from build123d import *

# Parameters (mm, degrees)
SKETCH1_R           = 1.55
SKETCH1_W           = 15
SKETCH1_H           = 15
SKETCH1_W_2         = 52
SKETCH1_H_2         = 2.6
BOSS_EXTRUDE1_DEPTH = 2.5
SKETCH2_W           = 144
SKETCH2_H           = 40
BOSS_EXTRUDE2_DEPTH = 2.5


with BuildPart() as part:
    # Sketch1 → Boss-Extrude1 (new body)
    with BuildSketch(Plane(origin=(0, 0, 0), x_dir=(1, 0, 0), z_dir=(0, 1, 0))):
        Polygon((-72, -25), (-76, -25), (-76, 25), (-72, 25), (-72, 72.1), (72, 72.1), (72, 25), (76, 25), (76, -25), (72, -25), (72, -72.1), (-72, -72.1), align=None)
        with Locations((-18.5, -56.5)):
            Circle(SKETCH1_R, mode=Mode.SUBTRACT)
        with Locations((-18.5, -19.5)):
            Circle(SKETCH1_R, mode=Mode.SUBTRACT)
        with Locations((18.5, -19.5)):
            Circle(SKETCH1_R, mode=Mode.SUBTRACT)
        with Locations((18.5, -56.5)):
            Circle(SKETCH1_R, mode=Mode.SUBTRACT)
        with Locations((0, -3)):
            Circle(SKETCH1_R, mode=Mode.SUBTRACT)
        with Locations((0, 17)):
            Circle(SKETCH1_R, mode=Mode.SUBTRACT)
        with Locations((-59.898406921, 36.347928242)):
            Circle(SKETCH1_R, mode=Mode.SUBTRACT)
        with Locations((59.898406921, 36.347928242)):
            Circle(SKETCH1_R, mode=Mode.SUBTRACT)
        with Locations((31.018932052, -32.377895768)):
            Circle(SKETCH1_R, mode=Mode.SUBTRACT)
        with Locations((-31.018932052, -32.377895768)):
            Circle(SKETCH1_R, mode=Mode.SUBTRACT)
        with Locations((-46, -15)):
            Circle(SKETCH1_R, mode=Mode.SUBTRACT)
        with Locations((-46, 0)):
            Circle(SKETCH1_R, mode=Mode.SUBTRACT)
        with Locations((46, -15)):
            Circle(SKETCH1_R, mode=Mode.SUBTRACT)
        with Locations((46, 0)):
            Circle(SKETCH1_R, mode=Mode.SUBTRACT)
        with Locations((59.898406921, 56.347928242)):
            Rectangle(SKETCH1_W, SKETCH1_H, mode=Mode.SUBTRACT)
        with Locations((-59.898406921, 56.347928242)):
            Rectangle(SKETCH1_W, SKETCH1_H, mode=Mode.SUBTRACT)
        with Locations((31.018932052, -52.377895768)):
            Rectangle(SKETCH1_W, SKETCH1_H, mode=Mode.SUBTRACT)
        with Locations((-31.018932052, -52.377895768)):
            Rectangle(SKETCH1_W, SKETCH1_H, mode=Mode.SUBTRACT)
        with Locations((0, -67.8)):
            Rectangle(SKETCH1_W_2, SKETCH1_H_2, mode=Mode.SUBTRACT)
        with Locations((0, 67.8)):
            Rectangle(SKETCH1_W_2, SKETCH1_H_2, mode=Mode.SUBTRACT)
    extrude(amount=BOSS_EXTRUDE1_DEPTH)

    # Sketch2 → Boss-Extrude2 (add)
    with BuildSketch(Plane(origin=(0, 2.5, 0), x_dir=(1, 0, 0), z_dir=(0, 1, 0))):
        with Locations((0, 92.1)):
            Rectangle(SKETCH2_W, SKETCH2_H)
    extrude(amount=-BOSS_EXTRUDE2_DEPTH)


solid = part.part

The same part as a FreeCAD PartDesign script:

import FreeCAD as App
import Part
import Sketcher

doc = App.newDocument("Part")
body = doc.addObject("PartDesign::Body", "Body")

sketch1 = body.newObject("Sketcher::SketchObject", "Sketch")
sketch1.AttachmentSupport = (doc.getObject("XZ_Plane"), [""])
sketch1.MapMode = "FlatFace"
sketch1.addGeometry([
    Part.LineSegment(App.Vector(-76, 25, 0), App.Vector(-72, 25, 0)),
    Part.LineSegment(App.Vector(-72, 25, 0), App.Vector(-72, 72.1, 0)),
    Part.LineSegment(App.Vector(-72, 72.1, 0), App.Vector(72, 72.1, 0)),
    Part.LineSegment(App.Vector(72, 72.1, 0), App.Vector(72, 25, 0)),
    Part.LineSegment(App.Vector(72, 25, 0), App.Vector(76, 25, 0)),
    Part.LineSegment(App.Vector(76, 25, 0), App.Vector(76, -25, 0)),
    Part.LineSegment(App.Vector(76, -25, 0), App.Vector(72, -25, 0)),
    Part.LineSegment(App.Vector(72, -25, 0), App.Vector(72, -72.1, 0)),
    Part.LineSegment(App.Vector(72, -72.1, 0), App.Vector(-72, -72.1, 0)),
    Part.LineSegment(App.Vector(-72, -72.1, 0), App.Vector(-72, -25, 0)),
    Part.LineSegment(App.Vector(-72, -25, 0), App.Vector(-76, -25, 0)),
    Part.LineSegment(App.Vector(-76, -25, 0), App.Vector(-76, 25, 0)),
    Part.LineSegment(App.Vector(23.5, 59.9, 0), App.Vector(23.5, 44.9, 0)),
    Part.LineSegment(App.Vector(23.5, 44.9, 0), App.Vector(38.5, 44.9, 0)),
    Part.LineSegment(App.Vector(38.5, 44.9, 0), App.Vector(38.5, 59.9, 0)),
    Part.LineSegment(App.Vector(38.5, 59.9, 0), App.Vector(23.5, 59.9, 0)),
    Part.Circle(App.Vector(18.5, 56.5, 0), App.Vector(0, 0, 1), 1.6),
    Part.Circle(App.Vector(46, 15, 0), App.Vector(0, 0, 1), 1.6),
    Part.Circle(App.Vector(31, 32.4, 0), App.Vector(0, 0, 1), 1.6),
    Part.Circle(App.Vector(18.5, 19.5, 0), App.Vector(0, 0, 1), 1.6),
    Part.LineSegment(App.Vector(-26, 69.1, 0), App.Vector(-26, 66.5, 0)),
    Part.LineSegment(App.Vector(-26, 66.5, 0), App.Vector(26, 66.5, 0)),
    Part.LineSegment(App.Vector(26, 66.5, 0), App.Vector(26, 69.1, 0)),
    Part.LineSegment(App.Vector(26, 69.1, 0), App.Vector(-26, 69.1, 0)),
    Part.Circle(App.Vector(-18.5, 56.5, 0), App.Vector(0, 0, 1), 1.6),
    Part.LineSegment(App.Vector(-38.5, 59.9, 0), App.Vector(-38.5, 44.9, 0)),
    Part.LineSegment(App.Vector(-38.5, 44.9, 0), App.Vector(-23.5, 44.9, 0)),
    Part.LineSegment(App.Vector(-23.5, 44.9, 0), App.Vector(-23.5, 59.9, 0)),
    Part.LineSegment(App.Vector(-23.5, 59.9, 0), App.Vector(-38.5, 59.9, 0)),
    Part.Circle(App.Vector(-31, 32.4, 0), App.Vector(0, 0, 1), 1.6),
    Part.Circle(App.Vector(-18.5, 19.5, 0), App.Vector(0, 0, 1), 1.6),
    Part.Circle(App.Vector(0, 3, 0), App.Vector(0, 0, 1), 1.6),
    Part.Circle(App.Vector(-46, 15, 0), App.Vector(0, 0, 1), 1.6),
    Part.Circle(App.Vector(46, 0, 0), App.Vector(0, 0, 1), 1.6),
    Part.Circle(App.Vector(59.9, -36.3, 0), App.Vector(0, 0, 1), 1.6),
    Part.LineSegment(App.Vector(52.4, -48.8, 0), App.Vector(52.4, -63.8, 0)),
    Part.LineSegment(App.Vector(52.4, -63.8, 0), App.Vector(67.4, -63.8, 0)),
    Part.LineSegment(App.Vector(67.4, -63.8, 0), App.Vector(67.4, -48.8, 0)),
    Part.LineSegment(App.Vector(67.4, -48.8, 0), App.Vector(52.4, -48.8, 0)),
    Part.Circle(App.Vector(0, -17, 0), App.Vector(0, 0, 1), 1.6),
    Part.Circle(App.Vector(-46, 0, 0), App.Vector(0, 0, 1), 1.6),
    Part.LineSegment(App.Vector(-26, -66.5, 0), App.Vector(-26, -69.1, 0)),
    Part.LineSegment(App.Vector(-26, -69.1, 0), App.Vector(26, -69.1, 0)),
    Part.LineSegment(App.Vector(26, -69.1, 0), App.Vector(26, -66.5, 0)),
    Part.LineSegment(App.Vector(26, -66.5, 0), App.Vector(-26, -66.5, 0)),
    Part.Circle(App.Vector(-59.9, -36.3, 0), App.Vector(0, 0, 1), 1.6),
    Part.LineSegment(App.Vector(-67.4, -48.8, 0), App.Vector(-67.4, -63.8, 0)),
    Part.LineSegment(App.Vector(-67.4, -63.8, 0), App.Vector(-52.4, -63.8, 0)),
    Part.LineSegment(App.Vector(-52.4, -63.8, 0), App.Vector(-52.4, -48.8, 0)),
    Part.LineSegment(App.Vector(-52.4, -48.8, 0), App.Vector(-67.4, -48.8, 0)),
], False)
sketch1.addConstraint([
    Sketcher.Constraint("Coincident", 0, 2, 1, 1),
    Sketcher.Constraint("Coincident", 1, 2, 2, 1),
    Sketcher.Constraint("Coincident", 2, 2, 3, 1),
    Sketcher.Constraint("Coincident", 3, 2, 4, 1),
    Sketcher.Constraint("Coincident", 4, 2, 5, 1),
    Sketcher.Constraint("Coincident", 5, 2, 6, 1),
    Sketcher.Constraint("Coincident", 6, 2, 7, 1),
    Sketcher.Constraint("Coincident", 7, 2, 8, 1),
    Sketcher.Constraint("Coincident", 8, 2, 9, 1),
    Sketcher.Constraint("Coincident", 9, 2, 10, 1),
    Sketcher.Constraint("Coincident", 10, 2, 11, 1),
    Sketcher.Constraint("Coincident", 11, 2, 0, 1),
    Sketcher.Constraint("Coincident", 12, 2, 13, 1),
    Sketcher.Constraint("Coincident", 13, 2, 14, 1),
    Sketcher.Constraint("Coincident", 14, 2, 15, 1),
    Sketcher.Constraint("Coincident", 15, 2, 12, 1),
    Sketcher.Constraint("Coincident", 20, 2, 21, 1),
    Sketcher.Constraint("Coincident", 21, 2, 22, 1),
    Sketcher.Constraint("Coincident", 22, 2, 23, 1),
    Sketcher.Constraint("Coincident", 23, 2, 20, 1),
    Sketcher.Constraint("Coincident", 25, 2, 26, 1),
    Sketcher.Constraint("Coincident", 26, 2, 27, 1),
    Sketcher.Constraint("Coincident", 27, 2, 28, 1),
    Sketcher.Constraint("Coincident", 28, 2, 25, 1),
    Sketcher.Constraint("Coincident", 35, 2, 36, 1),
    Sketcher.Constraint("Coincident", 36, 2, 37, 1),
    Sketcher.Constraint("Coincident", 37, 2, 38, 1),
    Sketcher.Constraint("Coincident", 38, 2, 35, 1),
    Sketcher.Constraint("Coincident", 41, 2, 42, 1),
    Sketcher.Constraint("Coincident", 42, 2, 43, 1),
    Sketcher.Constraint("Coincident", 43, 2, 44, 1),
    Sketcher.Constraint("Coincident", 44, 2, 41, 1),
    Sketcher.Constraint("Coincident", 46, 2, 47, 1),
    Sketcher.Constraint("Coincident", 47, 2, 48, 1),
    Sketcher.Constraint("Coincident", 48, 2, 49, 1),
    Sketcher.Constraint("Coincident", 49, 2, 46, 1),
    Sketcher.Constraint("Horizontal", 0),
    Sketcher.Constraint("Vertical", 1),
    Sketcher.Constraint("Horizontal", 2),
    Sketcher.Constraint("Vertical", 3),
    Sketcher.Constraint("Horizontal", 4),
    Sketcher.Constraint("Vertical", 5),
    Sketcher.Constraint("Horizontal", 6),
    Sketcher.Constraint("Vertical", 7),
    Sketcher.Constraint("Horizontal", 8),
    Sketcher.Constraint("Vertical", 9),
    Sketcher.Constraint("Horizontal", 10),
    Sketcher.Constraint("Vertical", 11),
    Sketcher.Constraint("Vertical", 12),
    Sketcher.Constraint("Horizontal", 13),
    Sketcher.Constraint("Vertical", 14),
    Sketcher.Constraint("Horizontal", 15),
    Sketcher.Constraint("Vertical", 20),
    Sketcher.Constraint("Horizontal", 21),
    Sketcher.Constraint("Vertical", 22),
    Sketcher.Constraint("Horizontal", 23),
    Sketcher.Constraint("Vertical", 25),
    Sketcher.Constraint("Horizontal", 26),
    Sketcher.Constraint("Vertical", 27),
    Sketcher.Constraint("Horizontal", 28),
    Sketcher.Constraint("Vertical", 35),
    Sketcher.Constraint("Horizontal", 36),
    Sketcher.Constraint("Vertical", 37),
    Sketcher.Constraint("Horizontal", 38),
    Sketcher.Constraint("Vertical", 41),
    Sketcher.Constraint("Horizontal", 42),
    Sketcher.Constraint("Vertical", 43),
    Sketcher.Constraint("Horizontal", 44),
    Sketcher.Constraint("Vertical", 46),
    Sketcher.Constraint("Horizontal", 47),
    Sketcher.Constraint("Vertical", 48),
    Sketcher.Constraint("Horizontal", 49),
    Sketcher.Constraint("Equal", 16, 17),
    Sketcher.Constraint("Equal", 17, 18),
    Sketcher.Constraint("Equal", 18, 19),
    Sketcher.Constraint("Equal", 19, 24),
    Sketcher.Constraint("Equal", 24, 29),
    Sketcher.Constraint("Equal", 29, 30),
    Sketcher.Constraint("Equal", 30, 31),
    Sketcher.Constraint("Equal", 31, 32),
    Sketcher.Constraint("Equal", 32, 33),
    Sketcher.Constraint("Equal", 33, 34),
    Sketcher.Constraint("Equal", 34, 39),
    Sketcher.Constraint("Equal", 39, 40),
    Sketcher.Constraint("Equal", 40, 45),
    Sketcher.Constraint("Symmetric", 33, 3, 40, 3, -1, 1),
    Sketcher.Constraint("Symmetric", 0, 2, 6, 2, -1, 1),
    Sketcher.Constraint("Symmetric", 2, 2, 8, 2, -1, 1),
    Sketcher.Constraint("Symmetric", 4, 2, 10, 2, -1, 1),
    Sketcher.Constraint("Symmetric", 22, 2, 41, 2, -1, 1),
    Sketcher.Constraint("Symmetric", 20, 2, 43, 2, -1, 1),
    Sketcher.Constraint("Symmetric", 16, 3, 24, 3, -2),
    Sketcher.Constraint("Symmetric", 18, 3, 29, 3, -2),
    Sketcher.Constraint("Symmetric", 19, 3, 30, 3, -2),
    Sketcher.Constraint("Symmetric", 17, 3, 32, 3, -2),
    Sketcher.Constraint("Symmetric", 34, 3, 45, 3, -2),
    Sketcher.Constraint("Symmetric", 0, 2, 3, 2, -2),
    Sketcher.Constraint("Symmetric", 13, 2, 25, 2, -2),
    Sketcher.Constraint("Symmetric", 15, 2, 27, 2, -2),
    Sketcher.Constraint("Symmetric", 36, 2, 46, 2, -2),
    Sketcher.Constraint("Symmetric", 38, 2, 48, 2, -2),
    Sketcher.Constraint("PointOnObject", 31, 3, -2),
    Sketcher.Constraint("PointOnObject", 33, 3, -1),
    Sketcher.Constraint("PointOnObject", 39, 3, -2),
    Sketcher.Constraint("Vertical", 16, 3, 19, 3),
    Sketcher.Constraint("Vertical", 17, 3, 33, 3),
    Sketcher.Constraint("Vertical", 23, 2, 41, 2),
    Sketcher.Constraint("Equal", 28, 36),
    Sketcher.Constraint("Equal", 49, 12),
    Sketcher.Constraint("Equal", 27, 35),
    Sketcher.Constraint("Diameter", 16, 3.1),
    Sketcher.Constraint("DistanceX", 0, 1, 0, 2, 4.0),
    Sketcher.Constraint("DistanceX", 2, 1, 2, 2, 144.0),
    Sketcher.Constraint("DistanceX", 13, 1, 13, 2, 15.0),
    Sketcher.Constraint("DistanceX", 21, 1, 21, 2, 52.0),
    Sketcher.Constraint("DistanceY", 5, 2, 5, 1, 50.0),
    Sketcher.Constraint("DistanceY", 1, 1, 1, 2, 47.1),
    Sketcher.Constraint("DistanceY", 20, 2, 20, 1, 2.6),
    Sketcher.Constraint("DistanceX", -1, 1, 17, 3, 46.0),
    Sketcher.Constraint("DistanceY", -1, 1, 17, 3, 15.0),
    Sketcher.Constraint("DistanceY", -1, 1, 31, 3, 3.0),
    Sketcher.Constraint("DistanceY", 39, 3, -1, 1, 17.0),
    Sketcher.Constraint("DistanceY", 19, 3, 16, 3, 37.0),
    Sketcher.Constraint("DistanceX", 24, 3, 16, 3, 37.0),
    Sketcher.Constraint("DistanceY", 24, 3, 20, 2, 10.0),
    Sketcher.Constraint("DistanceY", 23, 2, 1, 2, 3.0),
    Sketcher.Constraint("DistanceX", 12, 2, 18, 3, 7.5),
    Sketcher.Constraint("DistanceY", 18, 3, 12, 2, 12.5),
    Sketcher.Constraint("DistanceX", 35, 2, 34, 3, 7.5),
    Sketcher.Constraint("DistanceY", 35, 2, 34, 3, 27.5),
    Sketcher.Constraint("DistanceY", 34, 3, -1, 1, 36.347928),
    Sketcher.Constraint("DistanceX", -1, 1, 18, 3, 31.018932),
    Sketcher.Constraint("DistanceY", -1, 1, 18, 3, 32.377896),
    Sketcher.Constraint("DistanceX", -1, 1, 34, 3, 59.898407),
])
pad1 = body.newObject("PartDesign::Pad", "Pad")
pad1.Profile = sketch1
pad1.Length = 2.5
pad1.Reversed = True

sketch2 = body.newObject("Sketcher::SketchObject", "Sketch001")
sketch2.AttachmentSupport = (doc.getObject("XZ_Plane"), [""])
sketch2.MapMode = "FlatFace"
sketch2.AttachmentOffset = App.Placement(App.Vector(0, 0, -2.5), App.Rotation())
sketch2.addGeometry([
    Part.LineSegment(App.Vector(-72, -112, 0), App.Vector(-72, -72, 0)),
    Part.LineSegment(App.Vector(-72, -72, 0), App.Vector(72, -72, 0)),
    Part.LineSegment(App.Vector(72, -72, 0), App.Vector(72, -112, 0)),
    Part.LineSegment(App.Vector(72, -112, 0), App.Vector(-72, -112, 0)),
], False)
sketch2.addConstraint([
    Sketcher.Constraint("Coincident", 0, 2, 1, 1),
    Sketcher.Constraint("Coincident", 1, 2, 2, 1),
    Sketcher.Constraint("Coincident", 2, 2, 3, 1),
    Sketcher.Constraint("Coincident", 3, 2, 0, 1),
    Sketcher.Constraint("Vertical", 0),
    Sketcher.Constraint("Horizontal", 1),
    Sketcher.Constraint("Vertical", 2),
    Sketcher.Constraint("Horizontal", 3),
    Sketcher.Constraint("DistanceX", 1, 1, 1, 2, 144.0),
    Sketcher.Constraint("DistanceY", 0, 1, 0, 2, 40.0),
    Sketcher.Constraint("DistanceX", 0, 2, -1, 1, 72.0),
    Sketcher.Constraint("DistanceY", 0, 2, -1, 1, 72.1),
])
pad2 = body.newObject("PartDesign::Pad", "Pad001")
pad2.Profile = sketch2
pad2.Length = 2.5

doc.recompute()
